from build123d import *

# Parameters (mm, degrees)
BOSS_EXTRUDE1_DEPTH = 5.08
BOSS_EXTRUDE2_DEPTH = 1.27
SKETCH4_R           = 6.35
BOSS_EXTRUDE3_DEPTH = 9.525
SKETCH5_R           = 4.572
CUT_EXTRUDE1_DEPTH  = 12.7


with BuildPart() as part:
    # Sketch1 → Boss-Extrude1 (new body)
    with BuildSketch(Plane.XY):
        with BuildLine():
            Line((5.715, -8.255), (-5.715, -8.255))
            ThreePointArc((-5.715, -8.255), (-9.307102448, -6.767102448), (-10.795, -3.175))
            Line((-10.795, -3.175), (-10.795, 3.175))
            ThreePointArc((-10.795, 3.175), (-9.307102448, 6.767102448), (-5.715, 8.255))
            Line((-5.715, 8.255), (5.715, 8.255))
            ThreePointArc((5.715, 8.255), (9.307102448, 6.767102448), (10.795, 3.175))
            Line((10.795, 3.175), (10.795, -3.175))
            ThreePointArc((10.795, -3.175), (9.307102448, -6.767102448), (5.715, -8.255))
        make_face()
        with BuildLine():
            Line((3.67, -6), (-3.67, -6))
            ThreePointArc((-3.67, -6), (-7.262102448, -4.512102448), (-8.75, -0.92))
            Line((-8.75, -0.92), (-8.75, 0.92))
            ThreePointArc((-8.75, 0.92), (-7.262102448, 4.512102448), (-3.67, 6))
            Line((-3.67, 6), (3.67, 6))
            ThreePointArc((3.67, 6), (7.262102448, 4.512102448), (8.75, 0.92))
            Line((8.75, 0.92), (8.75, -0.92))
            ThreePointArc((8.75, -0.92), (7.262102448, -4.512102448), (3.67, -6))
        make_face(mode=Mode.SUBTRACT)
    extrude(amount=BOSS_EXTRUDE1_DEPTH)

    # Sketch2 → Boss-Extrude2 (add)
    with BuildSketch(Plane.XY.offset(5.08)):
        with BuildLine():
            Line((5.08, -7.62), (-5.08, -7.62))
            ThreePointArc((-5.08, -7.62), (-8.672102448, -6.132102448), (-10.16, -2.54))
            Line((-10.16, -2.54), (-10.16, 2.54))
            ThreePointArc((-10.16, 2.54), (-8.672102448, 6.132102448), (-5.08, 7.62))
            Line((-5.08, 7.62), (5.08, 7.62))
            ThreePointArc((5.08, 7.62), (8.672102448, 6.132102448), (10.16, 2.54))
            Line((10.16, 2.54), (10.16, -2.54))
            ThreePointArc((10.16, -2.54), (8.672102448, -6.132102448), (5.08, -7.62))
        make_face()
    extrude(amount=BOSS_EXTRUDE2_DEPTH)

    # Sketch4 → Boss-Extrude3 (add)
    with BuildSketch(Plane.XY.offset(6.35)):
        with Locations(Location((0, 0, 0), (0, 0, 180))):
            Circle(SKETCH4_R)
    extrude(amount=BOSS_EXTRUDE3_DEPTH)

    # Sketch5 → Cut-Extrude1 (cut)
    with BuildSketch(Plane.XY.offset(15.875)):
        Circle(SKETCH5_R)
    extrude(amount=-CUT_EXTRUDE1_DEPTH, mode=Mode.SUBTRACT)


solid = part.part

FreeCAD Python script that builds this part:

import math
import FreeCAD as App
import Part
import Sketcher
Q = App.Units.Quantity

doc = App.newDocument("Part")
params = doc.addObject("Spreadsheet::Sheet", "Params")
for row, (alias, value) in enumerate([
    ("sketch1_radius", "0.2 in"),
    ("sketch1_width", "0.45 in"),
    ("sketch1_height", "0.25 in"),
    ("pad1_length", "0.2 in"),
    ("sketch2_radius", "0.2 in"),
    ("sketch2_width", "0.4 in"),
    ("sketch2_height", "0.2 in"),
    ("pad2_length", "0.05 in"),
    ("sketch3_diameter", "0.5 in"),
    ("pad3_length", "0.375 in"),
    ("sketch4_diameter", "0.36 in"),
    ("pocket1_length", "0.5 in"),
], start=1):
    params.set(f"A{row}", alias)
    params.set(f"B{row}", "=" + value)
    params.setAlias(f"B{row}", alias)

body = doc.addObject("PartDesign::Body", "Body")

# Sketch on XY plane
sketch1 = doc.addObject("Sketcher::SketchObject", "Sketch")
body.addObject(sketch1)
sketch1.AttachmentSupport = (doc.XY_Plane, [""])
sketch1.MapMode = "FlatFace"
sketch1.addGeometry(Part.LineSegment(App.Vector(-5.715, -8.255, 0), App.Vector(5.715, -8.255, 0)), False)
sketch1.addGeometry(Part.ArcOfCircle(Part.Circle(App.Vector(5.715, -3.175, 0), App.Vector(0, 0, 1), 5.08), math.radians(-90), math.radians(0)), False)
sketch1.addGeometry(Part.LineSegment(App.Vector(10.795, -3.175, 0), App.Vector(10.795, 3.175, 0)), False)
sketch1.addGeometry(Part.ArcOfCircle(Part.Circle(App.Vector(5.715, 3.175, 0), App.Vector(0, 0, 1), 5.08), math.radians(0), math.radians(90)), False)
sketch1.addGeometry(Part.LineSegment(App.Vector(5.715, 8.255, 0), App.Vector(-5.715, 8.255, 0)), False)
sketch1.addGeometry(Part.ArcOfCircle(Part.Circle(App.Vector(-5.715, 3.175, 0), App.Vector(0, 0, 1), 5.08), math.radians(90), math.radians(180)), False)
sketch1.addGeometry(Part.LineSegment(App.Vector(-10.795, 3.175, 0), App.Vector(-10.795, -3.175, 0)), False)
sketch1.addGeometry(Part.ArcOfCircle(Part.Circle(App.Vector(-5.715, -3.175, 0), App.Vector(0, 0, 1), 5.08), math.radians(-180), math.radians(-90)), False)
sketch1.addGeometry(Part.LineSegment(App.Vector(3.67, -6, 0), App.Vector(-3.67, -6, 0)), False)
sketch1.addGeometry(Part.ArcOfCircle(Part.Circle(App.Vector(-3.67, -0.92, 0), App.Vector(0, 0, 1), 5.08), math.radians(-180), math.radians(-90)), False)
sketch1.addGeometry(Part.LineSegment(App.Vector(-8.75, -0.92, 0), App.Vector(-8.75, 0.92, 0)), False)
sketch1.addGeometry(Part.ArcOfCircle(Part.Circle(App.Vector(-3.67, 0.92, 0), App.Vector(0, 0, 1), 5.08), math.radians(90), math.radians(180)), False)
sketch1.addGeometry(Part.LineSegment(App.Vector(-3.67, 6, 0), App.Vector(3.67, 6, 0)), False)
sketch1.addGeometry(Part.ArcOfCircle(Part.Circle(App.Vector(3.67, 0.92, 0), App.Vector(0, 0, 1), 5.08), math.radians(0), math.radians(90)), False)
sketch1.addGeometry(Part.LineSegment(App.Vector(8.75, 0.92, 0), App.Vector(8.75, -0.92, 0)), False)
sketch1.addGeometry(Part.ArcOfCircle(Part.Circle(App.Vector(3.67, -0.92, 0), App.Vector(0, 0, 1), 5.08), math.radians(-90), math.radians(0)), False)
sketch1.addConstraint(Sketcher.Constraint("Tangent", 0, 2, 1, 1))
sketch1.addConstraint(Sketcher.Constraint("Tangent", 1, 2, 2, 1))
sketch1.addConstraint(Sketcher.Constraint("Tangent", 2, 2, 3, 1))
sketch1.addConstraint(Sketcher.Constraint("Tangent", 3, 2, 4, 1))
sketch1.addConstraint(Sketcher.Constraint("Tangent", 4, 2, 5, 1))
sketch1.addConstraint(Sketcher.Constraint("Tangent", 5, 2, 6, 1))
sketch1.addConstraint(Sketcher.Constraint("Tangent", 6, 2, 7, 1))
sketch1.addConstraint(Sketcher.Constraint("Tangent", 7, 2, 0, 1))
sketch1.addConstraint(Sketcher.Constraint("Tangent", 8, 2, 9, 2))
sketch1.addConstraint(Sketcher.Constraint("Tangent", 9, 1, 10, 1))
sketch1.addConstraint(Sketcher.Constraint("Tangent", 10, 2, 11, 2))
sketch1.addConstraint(Sketcher.Constraint("Tangent", 11, 1, 12, 1))
sketch1.addConstraint(Sketcher.Constraint("Tangent", 12, 2, 13, 2))
sketch1.addConstraint(Sketcher.Constraint("Tangent", 13, 1, 14, 1))
sketch1.addConstraint(Sketcher.Constraint("Tangent", 14, 2, 15, 2))
sketch1.addConstraint(Sketcher.Constraint("Tangent", 15, 1, 8, 1))
sketch1.addConstraint(Sketcher.Constraint("Horizontal", 0))
sketch1.addConstraint(Sketcher.Constraint("Vertical", 2))
sketch1.addConstraint(Sketcher.Constraint("Horizontal", 4))
sketch1.addConstraint(Sketcher.Constraint("Vertical", 6))
sketch1.addConstraint(Sketcher.Constraint("Horizontal", 8))
sketch1.addConstraint(Sketcher.Constraint("Vertical", 10))
sketch1.addConstraint(Sketcher.Constraint("Horizontal", 12))
sketch1.addConstraint(Sketcher.Constraint("Vertical", 14))
sketch1.addConstraint(Sketcher.Constraint("Equal", 1, 3))
sketch1.addConstraint(Sketcher.Constraint("Equal", 3, 5))
sketch1.addConstraint(Sketcher.Constraint("Equal", 5, 7))
sketch1.addConstraint(Sketcher.Constraint("Equal", 7, 9))
sketch1.addConstraint(Sketcher.Constraint("Equal", 9, 11))
sketch1.addConstraint(Sketcher.Constraint("Equal", 11, 13))
sketch1.addConstraint(Sketcher.Constraint("Equal", 13, 15))
sketch1.addConstraint(Sketcher.Constraint("Symmetric", 1, 3, 5, 3, -1, 1))
sketch1.addConstraint(Sketcher.Constraint("Symmetric", 9, 3, 13, 3, -1, 1))
sketch1.addConstraint(Sketcher.Constraint("Radius", 1, Q("0.2 in")))
sketch1.addConstraint(Sketcher.Constraint("DistanceX", 0, 1, 0, 2, Q("0.45 in")))
sketch1.addConstraint(Sketcher.Constraint("DistanceY", 2, 1, 2, 2, Q("0.25 in")))
sketch1.addConstraint(Sketcher.Constraint("DistanceX", 8, 2, 8, 1, 7.34))
sketch1.addConstraint(Sketcher.Constraint("DistanceY", 10, 1, 10, 2, 1.84))
sketch1.setExpression("Constraints[33]", "Params.sketch1_radius")
sketch1.setExpression("Constraints[34]", "Params.sketch1_width")
sketch1.setExpression("Constraints[35]", "Params.sketch1_height")
pad1 = doc.addObject("PartDesign::Pad", "Pad")
body.addObject(pad1)
pad1.Profile = sketch1
pad1.setExpression("Length", "Params.pad1_length")

# Sketch on XY plane
sketch2 = doc.addObject("Sketcher::SketchObject", "Sketch001")
body.addObject(sketch2)
sketch2.AttachmentSupport = (doc.XY_Plane, [""])
sketch2.MapMode = "FlatFace"
sketch2.AttachmentOffset = App.Placement(App.Vector(0, 0, 0.2 * 25.4), App.Rotation())
sketch2.addGeometry(Part.LineSegment(App.Vector(-5.08, -7.62, 0), App.Vector(5.08, -7.62, 0)), False)
sketch2.addGeometry(Part.ArcOfCircle(Part.Circle(App.Vector(5.08, -2.54, 0), App.Vector(0, 0, 1), 5.08), math.radians(-90), math.radians(0)), False)
sketch2.addGeometry(Part.LineSegment(App.Vector(10.16, -2.54, 0), App.Vector(10.16, 2.54, 0)), False)
sketch2.addGeometry(Part.ArcOfCircle(Part.Circle(App.Vector(5.08, 2.54, 0), App.Vector(0, 0, 1), 5.08), math.radians(0), math.radians(90)), False)
sketch2.addGeometry(Part.LineSegment(App.Vector(5.08, 7.62, 0), App.Vector(-5.08, 7.62, 0)), False)
sketch2.addGeometry(Part.ArcOfCircle(Part.Circle(App.Vector(-5.08, 2.54, 0), App.Vector(0, 0, 1), 5.08), math.radians(90), math.radians(180)), False)
sketch2.addGeometry(Part.LineSegment(App.Vector(-10.16, 2.54, 0), App.Vector(-10.16, -2.54, 0)), False)
sketch2.addGeometry(Part.ArcOfCircle(Part.Circle(App.Vector(-5.08, -2.54, 0), App.Vector(0, 0, 1), 5.08), math.radians(-180), math.radians(-90)), False)
sketch2.addConstraint(Sketcher.Constraint("Tangent", 0, 2, 1, 1))
sketch2.addConstraint(Sketcher.Constraint("Tangent", 1, 2, 2, 1))
sketch2.addConstraint(Sketcher.Constraint("Tangent", 2, 2, 3, 1))
sketch2.addConstraint(Sketcher.Constraint("Tangent", 3, 2, 4, 1))
sketch2.addConstraint(Sketcher.Constraint("Tangent", 4, 2, 5, 1))
sketch2.addConstraint(Sketcher.Constraint("Tangent", 5, 2, 6, 1))
sketch2.addConstraint(Sketcher.Constraint("Tangent", 6, 2, 7, 1))
sketch2.addConstraint(Sketcher.Constraint("Tangent", 7, 2, 0, 1))
sketch2.addConstraint(Sketcher.Constraint("Horizontal", 0))
sketch2.addConstraint(Sketcher.Constraint("Vertical", 2))
sketch2.addConstraint(Sketcher.Constraint("Horizontal", 4))
sketch2.addConstraint(Sketcher.Constraint("Vertical", 6))
sketch2.addConstraint(Sketcher.Constraint("Equal", 1, 3))
sketch2.addConstraint(Sketcher.Constraint("Equal", 3, 5))
sketch2.addConstraint(Sketcher.Constraint("Equal", 5, 7))
sketch2.addConstraint(Sketcher.Constraint("Symmetric", 1, 3, 5, 3, -1, 1))
sketch2.addConstraint(Sketcher.Constraint("Radius", 1, Q("0.2 in")))
sketch2.addConstraint(Sketcher.Constraint("DistanceX", 0, 1, 0, 2, Q("0.4 in")))
sketch2.addConstraint(Sketcher.Constraint("DistanceY", 2, 1, 2, 2, Q("0.2 in")))
sketch2.setExpression("Constraints[16]", "Params.sketch2_radius")
sketch2.setExpression("Constraints[17]", "Params.sketch2_width")
sketch2.setExpression("Constraints[18]", "Params.sketch2_height")
pad2 = doc.addObject("PartDesign::Pad", "Pad001")
body.addObject(pad2)
pad2.Profile = sketch2
pad2.setExpression("Length", "Params.pad2_length")

# Sketch on XY plane
sketch3 = doc.addObject("Sketcher::SketchObject", "Sketch002")
body.addObject(sketch3)
sketch3.AttachmentSupport = (doc.XY_Plane, [""])
sketch3.MapMode = "FlatFace"
sketch3.AttachmentOffset = App.Placement(App.Vector(0, 0, 0.25 * 25.4), App.Rotation())
sketch3.addGeometry(Part.Circle(App.Vector(0, 0, 0), App.Vector(0, 0, 1), 6.35), False)
sketch3.addConstraint(Sketcher.Constraint("Coincident", 0, 3, -1, 1))
sketch3.addConstraint(Sketcher.Constraint("Diameter", 0, Q("0.5 in")))
sketch3.setExpression("Constraints[1]", "Params.sketch3_diameter")
pad3 = doc.addObject("PartDesign::Pad", "Pad002")
body.addObject(pad3)
pad3.Profile = sketch3
pad3.setExpression("Length", "Params.pad3_length")

# Sketch on XY plane
sketch4 = doc.addObject("Sketcher::SketchObject", "Sketch003")
body.addObject(sketch4)
sketch4.AttachmentSupport = (doc.XY_Plane, [""])
sketch4.MapMode = "FlatFace"
sketch4.AttachmentOffset = App.Placement(App.Vector(0, 0, 0.625 * 25.4), App.Rotation())
sketch4.addGeometry(Part.Circle(App.Vector(0, 0, 0), App.Vector(0, 0, 1), 4.572), False)
sketch4.addConstraint(Sketcher.Constraint("Coincident", 0, 3, -1, 1))
sketch4.addConstraint(Sketcher.Constraint("Diameter", 0, Q("0.36 in")))
sketch4.setExpression("Constraints[1]", "Params.sketch4_diameter")
pocket1 = doc.addObject("PartDesign::Pocket", "Pocket")
body.addObject(pocket1)
pocket1.Profile = sketch4
pocket1.setExpression("Length", "Params.pocket1_length")

doc.recompute()
